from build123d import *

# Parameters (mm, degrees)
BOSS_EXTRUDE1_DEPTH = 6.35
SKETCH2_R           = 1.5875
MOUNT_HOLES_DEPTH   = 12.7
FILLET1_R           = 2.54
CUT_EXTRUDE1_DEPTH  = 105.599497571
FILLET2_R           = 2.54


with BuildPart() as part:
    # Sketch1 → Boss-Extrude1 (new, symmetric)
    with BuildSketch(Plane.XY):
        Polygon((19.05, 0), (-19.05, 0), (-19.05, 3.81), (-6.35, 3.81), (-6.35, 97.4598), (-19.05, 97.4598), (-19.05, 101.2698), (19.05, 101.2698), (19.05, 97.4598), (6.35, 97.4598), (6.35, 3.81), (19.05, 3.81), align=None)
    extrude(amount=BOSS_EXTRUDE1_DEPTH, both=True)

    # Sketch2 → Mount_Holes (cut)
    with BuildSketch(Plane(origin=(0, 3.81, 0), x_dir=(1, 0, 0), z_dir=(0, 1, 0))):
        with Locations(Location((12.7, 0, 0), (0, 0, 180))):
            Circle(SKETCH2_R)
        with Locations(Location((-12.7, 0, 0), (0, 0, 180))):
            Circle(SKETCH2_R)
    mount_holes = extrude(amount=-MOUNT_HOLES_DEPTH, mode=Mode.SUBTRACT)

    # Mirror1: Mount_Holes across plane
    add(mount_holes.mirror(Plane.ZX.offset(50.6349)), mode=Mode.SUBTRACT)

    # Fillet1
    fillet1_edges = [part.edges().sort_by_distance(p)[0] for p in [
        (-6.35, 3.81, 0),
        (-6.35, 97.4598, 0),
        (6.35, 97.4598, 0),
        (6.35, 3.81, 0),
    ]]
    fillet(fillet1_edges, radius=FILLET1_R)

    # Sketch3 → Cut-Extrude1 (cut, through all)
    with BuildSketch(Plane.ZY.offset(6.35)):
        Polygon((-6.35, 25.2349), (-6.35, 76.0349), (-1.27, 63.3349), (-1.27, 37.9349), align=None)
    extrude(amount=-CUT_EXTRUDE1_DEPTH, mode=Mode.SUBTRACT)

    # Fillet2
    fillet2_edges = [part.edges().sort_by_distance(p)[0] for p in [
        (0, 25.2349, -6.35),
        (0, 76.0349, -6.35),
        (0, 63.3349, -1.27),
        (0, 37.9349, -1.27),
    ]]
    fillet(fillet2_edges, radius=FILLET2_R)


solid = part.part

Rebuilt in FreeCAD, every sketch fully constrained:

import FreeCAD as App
import Part
import Sketcher
Q = App.Units.Quantity


def edges_at(feature, points):
    """Names of the edges that pass closest to the given points."""
    edges = feature.Shape.Edges
    near = lambda p: min(range(len(edges)), key=lambda i: edges[i].distToShape(Part.Vertex(*p))[0])
    return sorted({f"Edge{near(p) + 1}" for p in points})


def add_polygon(sketch, points):
    """Adds a closed chain of lines whose ends are joined by coincident constraints."""
    first, n = sketch.GeometryCount, len(points)
    for a, b in zip(points, points[1:] + points[:1]):
        sketch.addGeometry(Part.LineSegment(App.Vector(*a, 0), App.Vector(*b, 0)), False)
    for i in range(n):
        sketch.addConstraint(Sketcher.Constraint("Coincident", first + i, 2, first + (i + 1) % n, 1))

doc = App.newDocument("Part")
body = doc.addObject("PartDesign::Body", "Body")

# Sketch on XY plane
sketch1 = body.newObject("Sketcher::SketchObject", "Sketch")
sketch1.AttachmentSupport = (doc.getObject("XY_Plane"), [""])
sketch1.MapMode = "FlatFace"
add_polygon(sketch1, [(-19.05, 0), (19.05, 0), (19.05, 3.81), (6.35, 3.81), (6.35, 97.4598), (19.05, 97.4598), (19.05, 101.2698), (-19.05, 101.2698), (-19.05, 97.4598), (-6.35, 97.4598), (-6.35, 3.81), (-19.05, 3.81)])  # lines 0-11
sketch1.addConstraint([
    Sketcher.Constraint("Horizontal", 0),
    Sketcher.Constraint("Vertical", 1),
    Sketcher.Constraint("Horizontal", 2),
    Sketcher.Constraint("Vertical", 3),
    Sketcher.Constraint("Horizontal", 4),
    Sketcher.Constraint("Vertical", 5),
    Sketcher.Constraint("Horizontal", 6),
    Sketcher.Constraint("Vertical", 7),
    Sketcher.Constraint("Horizontal", 8),
    Sketcher.Constraint("Vertical", 9),
    Sketcher.Constraint("Horizontal", 10),
    Sketcher.Constraint("Vertical", 11),
    Sketcher.Constraint("Symmetric", 0, 2, 11, 2, -1, 1),
    Sketcher.Constraint("Symmetric", 4, 2, 7, 2, -2),
    Sketcher.Constraint("Symmetric", 2, 2, 9, 2, -2),
    Sketcher.Constraint("Vertical", 1, 2, 4, 2),
    Sketcher.Constraint("Equal", 1, 5),
    Sketcher.Constraint("DistanceX", 0, 1, 0, 2, Q("1.5 in")),
    Sketcher.Constraint("DistanceX", 2, 2, 2, 1, Q("0.5 in")),
    Sketcher.Constraint("DistanceY", 1, 1, 1, 2, Q("0.15 in")),
    Sketcher.Constraint("DistanceY", 3, 1, 3, 2, Q("3.687 in")),
])
pad1 = body.newObject("PartDesign::Pad", "Pad")
pad1.Profile = sketch1
pad1.Length = Q("0.5 in")
pad1.Midplane = True

# Sketch on XZ plane
sketch2 = body.newObject("Sketcher::SketchObject", "Sketch001")
sketch2.AttachmentSupport = (doc.getObject("XZ_Plane"), [""])
sketch2.MapMode = "FlatFace"
sketch2.AttachmentOffset = App.Placement(App.Vector(0, 0, -0.15 * 25.4), App.Rotation())
sketch2.addGeometry([
    Part.Circle(App.Vector(12.7, 0, 0), App.Vector(0, 0, 1), 1.5875),
    Part.Circle(App.Vector(-12.7, 0, 0), App.Vector(0, 0, 1), 1.5875),
], False)
sketch2.addConstraint([
    Sketcher.Constraint("Equal", 0, 1),
    Sketcher.Constraint("Symmetric", 0, 3, 1, 3, -1, 1),
    Sketcher.Constraint("PointOnObject", 0, 3, -1),
    Sketcher.Constraint("Diameter", 0, Q("0.125 in")),
    Sketcher.Constraint("DistanceX", 1, 3, 0, 3, Q("1 in")),
])
pocket1 = body.newObject("PartDesign::Pocket", "Pocket")
pocket1.Profile = sketch2
pocket1.Length = Q("0.5 in")
pocket1.Reversed = True
doc.recompute()

datumplane = body.newObject("PartDesign::Plane", "DatumPlane")
datumplane.AttachmentSupport = (doc.getObject("XZ_Plane"), [""])
datumplane.MapMode = "FlatFace"
datumplane.AttachmentOffset = App.Placement(App.Vector(0, 0, -1.9935 * 25.4), App.Rotation())
mirrored = body.newObject("PartDesign::Mirrored", "Mirrored")
mirrored.Originals = [pocket1]
mirrored.MirrorPlane = (datumplane, [""])
body.Tip = mirrored
doc.recompute()

fillet = body.newObject("PartDesign::Fillet", "Fillet")
fillet.Base = (mirrored, edges_at(mirrored, [
    (-6.35, 3.81, 0),
    (-6.35, 97.46, 0),
    (6.35, 97.46, 0),
    (6.35, 3.81, 0),
]))
fillet.Radius = Q("0.1 in")

# Sketch on YZ plane
sketch3 = body.newObject("Sketcher::SketchObject", "Sketch002")
sketch3.AttachmentSupport = (doc.getObject("YZ_Plane"), [""])
sketch3.MapMode = "FlatFace"
sketch3.AttachmentOffset = App.Placement(App.Vector(0, 0, -0.25 * 25.4), App.Rotation())
add_polygon(sketch3, [(76.0349, -6.35), (25.2349, -6.35), (37.9349, -1.27), (63.3349, -1.27)])  # lines 0-3
sketch3.addConstraint([
    Sketcher.Constraint("Horizontal", 0),
    Sketcher.Constraint("Horizontal", 2),
    Sketcher.Constraint("Equal", 1, 3),
    Sketcher.Constraint("DistanceX", 0, 2, 0, 1, Q("2 in")),
    Sketcher.Constraint("DistanceX", 2, 1, 2, 2, Q("1 in")),
    Sketcher.Constraint("DistanceY", 0, 2, 1, 2, Q("0.2 in")),
    Sketcher.Constraint("DistanceY", 0, 2, -1, 1, Q("0.25 in")),
    Sketcher.Constraint("DistanceX", -1, 1, 0, 2, Q("0.9935 in")),
])
pocket2 = body.newObject("PartDesign::Pocket", "Pocket001")
pocket2.Profile = sketch3
pocket2.Type = "ThroughAll"
pocket2.Reversed = True
doc.recompute()

fillet2 = body.newObject("PartDesign::Fillet", "Fillet001")
fillet2.Base = (pocket2, edges_at(pocket2, [
    (0, 25.235, -6.35),
    (0, 76.035, -6.35),
    (0, 63.335, -1.27),
    (0, 37.935, -1.27),
]))
fillet2.Radius = Q("0.1 in")

doc.recompute()
